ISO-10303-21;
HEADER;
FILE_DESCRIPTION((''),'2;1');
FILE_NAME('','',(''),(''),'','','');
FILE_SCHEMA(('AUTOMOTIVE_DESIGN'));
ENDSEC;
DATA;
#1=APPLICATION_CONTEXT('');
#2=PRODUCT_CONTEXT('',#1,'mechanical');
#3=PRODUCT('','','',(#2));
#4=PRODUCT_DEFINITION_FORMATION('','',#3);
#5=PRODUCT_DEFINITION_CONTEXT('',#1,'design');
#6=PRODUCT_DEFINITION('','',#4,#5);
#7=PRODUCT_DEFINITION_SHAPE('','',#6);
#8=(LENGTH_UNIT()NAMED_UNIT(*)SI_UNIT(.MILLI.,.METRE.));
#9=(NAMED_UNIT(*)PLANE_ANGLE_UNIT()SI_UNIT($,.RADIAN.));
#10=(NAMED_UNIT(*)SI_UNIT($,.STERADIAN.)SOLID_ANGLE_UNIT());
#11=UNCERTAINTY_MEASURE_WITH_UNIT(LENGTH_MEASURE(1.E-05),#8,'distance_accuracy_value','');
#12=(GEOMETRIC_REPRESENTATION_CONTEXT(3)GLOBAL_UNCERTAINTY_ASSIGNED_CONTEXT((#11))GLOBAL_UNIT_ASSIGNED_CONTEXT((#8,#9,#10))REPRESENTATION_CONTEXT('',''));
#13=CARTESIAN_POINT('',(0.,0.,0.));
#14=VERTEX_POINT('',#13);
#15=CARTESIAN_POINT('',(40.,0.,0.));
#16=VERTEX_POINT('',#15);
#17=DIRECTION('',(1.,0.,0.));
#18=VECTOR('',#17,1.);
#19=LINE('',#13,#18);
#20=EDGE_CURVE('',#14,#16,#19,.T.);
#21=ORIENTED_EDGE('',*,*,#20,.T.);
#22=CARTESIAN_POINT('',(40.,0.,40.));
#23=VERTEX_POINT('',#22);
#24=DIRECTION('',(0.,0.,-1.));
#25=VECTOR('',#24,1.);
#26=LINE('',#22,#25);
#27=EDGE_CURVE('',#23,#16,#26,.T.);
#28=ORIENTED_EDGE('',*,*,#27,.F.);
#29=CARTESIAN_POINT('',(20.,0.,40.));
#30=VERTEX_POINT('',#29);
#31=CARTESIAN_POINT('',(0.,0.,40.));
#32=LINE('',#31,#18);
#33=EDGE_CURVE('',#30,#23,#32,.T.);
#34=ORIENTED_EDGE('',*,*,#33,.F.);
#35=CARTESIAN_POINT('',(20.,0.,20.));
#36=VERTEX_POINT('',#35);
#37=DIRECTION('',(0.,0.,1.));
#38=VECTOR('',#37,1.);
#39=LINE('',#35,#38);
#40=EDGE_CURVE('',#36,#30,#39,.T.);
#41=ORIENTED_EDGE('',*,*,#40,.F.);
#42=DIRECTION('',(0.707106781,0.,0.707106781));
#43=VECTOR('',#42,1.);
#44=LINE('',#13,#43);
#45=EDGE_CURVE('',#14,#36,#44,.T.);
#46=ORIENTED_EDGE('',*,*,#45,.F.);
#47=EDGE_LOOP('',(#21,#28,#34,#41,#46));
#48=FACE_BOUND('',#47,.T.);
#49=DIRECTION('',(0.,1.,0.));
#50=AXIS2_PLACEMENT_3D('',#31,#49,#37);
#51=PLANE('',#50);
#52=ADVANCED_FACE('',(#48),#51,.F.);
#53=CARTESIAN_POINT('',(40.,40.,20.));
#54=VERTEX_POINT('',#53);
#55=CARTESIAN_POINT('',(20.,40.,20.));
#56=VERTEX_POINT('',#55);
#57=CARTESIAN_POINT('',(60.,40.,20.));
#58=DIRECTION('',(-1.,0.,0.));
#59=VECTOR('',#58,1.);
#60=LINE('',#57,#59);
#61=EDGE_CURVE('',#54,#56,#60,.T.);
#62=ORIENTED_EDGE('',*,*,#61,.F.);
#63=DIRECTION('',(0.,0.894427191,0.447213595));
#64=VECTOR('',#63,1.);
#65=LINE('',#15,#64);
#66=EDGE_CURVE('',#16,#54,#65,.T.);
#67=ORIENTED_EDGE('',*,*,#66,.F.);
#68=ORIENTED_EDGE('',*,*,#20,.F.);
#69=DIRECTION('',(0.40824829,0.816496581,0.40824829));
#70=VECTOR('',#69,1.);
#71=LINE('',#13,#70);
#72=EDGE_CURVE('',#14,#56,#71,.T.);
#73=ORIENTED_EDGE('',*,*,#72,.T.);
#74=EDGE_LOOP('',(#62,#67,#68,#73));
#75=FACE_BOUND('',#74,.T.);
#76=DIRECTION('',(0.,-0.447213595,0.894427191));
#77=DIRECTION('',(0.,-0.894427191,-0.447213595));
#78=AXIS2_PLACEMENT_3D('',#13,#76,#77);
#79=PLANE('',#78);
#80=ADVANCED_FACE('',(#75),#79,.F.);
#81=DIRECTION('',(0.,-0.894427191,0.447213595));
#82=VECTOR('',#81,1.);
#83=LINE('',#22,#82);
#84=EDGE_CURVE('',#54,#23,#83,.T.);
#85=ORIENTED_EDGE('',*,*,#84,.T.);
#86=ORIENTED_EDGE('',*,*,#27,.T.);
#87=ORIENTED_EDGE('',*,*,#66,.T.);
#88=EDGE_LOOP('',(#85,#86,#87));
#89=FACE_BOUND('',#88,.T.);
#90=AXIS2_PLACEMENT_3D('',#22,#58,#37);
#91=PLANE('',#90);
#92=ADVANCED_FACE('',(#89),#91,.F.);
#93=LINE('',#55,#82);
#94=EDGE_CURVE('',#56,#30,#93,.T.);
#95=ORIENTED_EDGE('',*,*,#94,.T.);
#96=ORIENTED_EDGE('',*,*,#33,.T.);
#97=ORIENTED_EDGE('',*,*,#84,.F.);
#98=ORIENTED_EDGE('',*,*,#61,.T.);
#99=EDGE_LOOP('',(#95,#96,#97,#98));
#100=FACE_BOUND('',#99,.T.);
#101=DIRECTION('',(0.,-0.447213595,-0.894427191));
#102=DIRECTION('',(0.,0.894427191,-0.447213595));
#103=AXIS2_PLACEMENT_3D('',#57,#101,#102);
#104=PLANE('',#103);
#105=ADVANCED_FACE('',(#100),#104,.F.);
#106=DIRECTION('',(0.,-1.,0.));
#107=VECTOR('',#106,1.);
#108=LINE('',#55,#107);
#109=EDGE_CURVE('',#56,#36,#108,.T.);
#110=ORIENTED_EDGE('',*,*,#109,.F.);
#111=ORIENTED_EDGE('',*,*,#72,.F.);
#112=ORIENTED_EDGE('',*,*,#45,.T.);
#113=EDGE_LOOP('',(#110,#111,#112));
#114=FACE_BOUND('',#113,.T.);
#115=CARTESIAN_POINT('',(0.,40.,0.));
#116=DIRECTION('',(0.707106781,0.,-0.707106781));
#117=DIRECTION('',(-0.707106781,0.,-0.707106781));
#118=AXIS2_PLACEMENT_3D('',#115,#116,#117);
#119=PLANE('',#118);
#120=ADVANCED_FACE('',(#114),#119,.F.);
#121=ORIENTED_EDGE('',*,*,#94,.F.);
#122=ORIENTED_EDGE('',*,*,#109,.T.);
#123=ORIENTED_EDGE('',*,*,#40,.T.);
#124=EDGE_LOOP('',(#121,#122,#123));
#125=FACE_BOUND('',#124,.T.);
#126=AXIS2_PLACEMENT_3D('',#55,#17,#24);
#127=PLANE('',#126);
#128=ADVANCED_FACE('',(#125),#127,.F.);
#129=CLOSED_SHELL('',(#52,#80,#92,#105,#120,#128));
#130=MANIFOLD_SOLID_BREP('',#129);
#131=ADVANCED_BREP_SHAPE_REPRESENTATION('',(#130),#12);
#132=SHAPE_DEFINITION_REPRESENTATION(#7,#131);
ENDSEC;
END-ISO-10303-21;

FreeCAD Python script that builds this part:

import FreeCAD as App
import Part
import Sketcher
Q = App.Units.Quantity


def add_polygon(sketch, points):
    """Adds a closed chain of lines whose ends are joined by coincident constraints."""
    first, n = sketch.GeometryCount, len(points)
    for a, b in zip(points, points[1:] + points[:1]):
        sketch.addGeometry(Part.LineSegment(App.Vector(*a, 0), App.Vector(*b, 0)), False)
    for i in range(n):
        sketch.addConstraint(Sketcher.Constraint("Coincident", first + i, 2, first + (i + 1) % n, 1))

doc = App.newDocument("Part")
params = doc.addObject("Spreadsheet::Sheet", "Params")
for row, (alias, value) in enumerate([
    ("sketch1_width", "40 mm"),
    ("pad1_length", "40 mm"),
    ("sketch2_width", "20 mm"),
    ("sketch2_height", "40 mm"),
    ("pocket1_length", "40 mm"),
    ("sketch3_width", "20 mm"),
    ("sketch3_height", "40 mm"),
    ("pocket2_length", "40 mm"),
    ("sketch4_width", "40 mm"),
    ("sketch4_height", "20 mm"),
    ("pocket3_length", "40 mm"),
    ("sketch5_width", "40 mm"),
    ("sketch5_width2", "20 mm"),
    ("pocket4_length", "40 mm"),
], start=1):
    params.set(f"A{row}", alias)
    params.set(f"B{row}", "=" + value)
    params.setAlias(f"B{row}", alias)

body = doc.addObject("PartDesign::Body", "Body")

# Sketch on XY plane
sketch1 = body.newObject("Sketcher::SketchObject", "Sketch")
sketch1.AttachmentSupport = (doc.getObject("XY_Plane"), [""])
sketch1.MapMode = "FlatFace"
add_polygon(sketch1, [(0, 40), (0, 0), (40, 0), (40, 40)])  # lines 0-3
sketch1.addConstraint(Sketcher.Constraint("Vertical", 0))
sketch1.addConstraint(Sketcher.Constraint("Horizontal", 1))
sketch1.addConstraint(Sketcher.Constraint("Vertical", 2))
sketch1.addConstraint(Sketcher.Constraint("Horizontal", 3))
sketch1.addConstraint(Sketcher.Constraint("Coincident", 0, 2, -1, 1))
sketch1.addConstraint(Sketcher.Constraint("Equal", 3, 0))
sketch1.addConstraint(Sketcher.Constraint("DistanceX", 1, 1, 1, 2, Q("40 mm")))
sketch1.setExpression("Constraints[10]", "Params.sketch1_width")
pad1 = body.newObject("PartDesign::Pad", "Pad")
pad1.Profile = sketch1
pad1.setExpression("Length", "Params.pad1_length")

# Sketch on XY plane
sketch2 = body.newObject("Sketcher::SketchObject", "Sketch001")
sketch2.AttachmentSupport = (doc.getObject("XY_Plane"), [""])
sketch2.MapMode = "FlatFace"
sketch2.AttachmentOffset = App.Placement(App.Vector(0, 0, 40), App.Rotation())
add_polygon(sketch2, [(0, 0), (20, 40), (0, 40)])  # lines 0-2
sketch2.addConstraint(Sketcher.Constraint("Horizontal", 1))
sketch2.addConstraint(Sketcher.Constraint("Vertical", 2))
sketch2.addConstraint(Sketcher.Constraint("Coincident", 2, 2, -1, 1))
sketch2.addConstraint(Sketcher.Constraint("DistanceX", 1, 2, 1, 1, Q("20 mm")))
sketch2.addConstraint(Sketcher.Constraint("DistanceY", 2, 2, 2, 1, Q("40 mm")))
sketch2.setExpression("Constraints[6]", "Params.sketch2_width")
sketch2.setExpression("Constraints[7]", "Params.sketch2_height")
pocket1 = body.newObject("PartDesign::Pocket", "Pocket")
pocket1.Profile = sketch2
pocket1.setExpression("Length", "Params.pocket1_length")

# Sketch on XZ plane
sketch3 = body.newObject("Sketcher::SketchObject", "Sketch002")
sketch3.AttachmentSupport = (doc.getObject("XZ_Plane"), [""])
sketch3.MapMode = "FlatFace"
add_polygon(sketch3, [(0, 0), (20, 20), (20, 40), (0, 40)])  # lines 0-3
sketch3.addConstraint(Sketcher.Constraint("Vertical", 1))
sketch3.addConstraint(Sketcher.Constraint("Horizontal", 2))
sketch3.addConstraint(Sketcher.Constraint("Vertical", 3))
sketch3.addConstraint(Sketcher.Constraint("Coincident", 3, 2, -1, 1))
sketch3.addConstraint(Sketcher.Constraint("Equal", 2, 1))
sketch3.addConstraint(Sketcher.Constraint("DistanceX", 2, 2, 2, 1, Q("20 mm")))
sketch3.addConstraint(Sketcher.Constraint("DistanceY", 3, 2, 3, 1, Q("40 mm")))
sketch3.setExpression("Constraints[9]", "Params.sketch3_width")
sketch3.setExpression("Constraints[10]", "Params.sketch3_height")
pocket2 = body.newObject("PartDesign::Pocket", "Pocket001")
pocket2.Profile = sketch3
pocket2.setExpression("Length", "Params.pocket2_length")

# Sketch on YZ plane
sketch4 = body.newObject("Sketcher::SketchObject", "Sketch003")
sketch4.AttachmentSupport = (doc.getObject("YZ_Plane"), [""])
sketch4.MapMode = "FlatFace"
sketch4.AttachmentOffset = App.Placement(App.Vector(0, 0, 20), App.Rotation())
add_polygon(sketch4, [(40, 20), (0, 40), (40, 40)])  # lines 0-2
sketch4.addConstraint(Sketcher.Constraint("Horizontal", 1))
sketch4.addConstraint(Sketcher.Constraint("Vertical", 2))
sketch4.addConstraint(Sketcher.Constraint("PointOnObject", 0, 2, -2))
sketch4.addConstraint(Sketcher.Constraint("DistanceX", 1, 1, 1, 2, Q("40 mm")))
sketch4.addConstraint(Sketcher.Constraint("DistanceY", 2, 2, 2, 1, Q("20 mm")))
sketch4.addConstraint(Sketcher.Constraint("DistanceY", -1, 1, 0, 2, Q("40 mm")))
sketch4.setExpression("Constraints[6]", "Params.sketch4_width")
sketch4.setExpression("Constraints[7]", "Params.sketch4_height")
pocket3 = body.newObject("PartDesign::Pocket", "Pocket002")
pocket3.Profile = sketch4
pocket3.setExpression("Length", "Params.pocket3_length")
pocket3.Reversed = True

# Sketch on an angled plane
sketch5 = body.newObject("Sketcher::SketchObject", "Sketch004")
sketch5.Placement = App.Placement(App.Vector(0, 0, 0), App.Rotation(App.Vector(1, 0, 0), App.Vector(0, 0.894427191, 0.447213595), App.Vector(0, -0.447213595, 0.894427191), "ZXY"))
add_polygon(sketch5, [(0, 0), (40, 0), (40, 44.72136), (20, 44.72136)])  # lines 0-3
sketch5.addConstraint(Sketcher.Constraint("Horizontal", 0))
sketch5.addConstraint(Sketcher.Constraint("Vertical", 1))
sketch5.addConstraint(Sketcher.Constraint("Horizontal", 2))
sketch5.addConstraint(Sketcher.Constraint("Coincident", 3, 2, -1, 1))
sketch5.addConstraint(Sketcher.Constraint("DistanceX", 0, 1, 0, 2, Q("40 mm")))
sketch5.addConstraint(Sketcher.Constraint("DistanceX", 2, 2, 2, 1, Q("20 mm")))
sketch5.addConstraint(Sketcher.Constraint("DistanceY", 1, 1, 1, 2, Q("44.72136 mm")))
sketch5.setExpression("Constraints[8]", "Params.sketch5_width")
sketch5.setExpression("Constraints[9]", "Params.sketch5_width2")
pocket4 = body.newObject("PartDesign::Pocket", "Pocket003")
pocket4.Profile = sketch5
pocket4.setExpression("Length", "Params.pocket4_length")

doc.recompute()
